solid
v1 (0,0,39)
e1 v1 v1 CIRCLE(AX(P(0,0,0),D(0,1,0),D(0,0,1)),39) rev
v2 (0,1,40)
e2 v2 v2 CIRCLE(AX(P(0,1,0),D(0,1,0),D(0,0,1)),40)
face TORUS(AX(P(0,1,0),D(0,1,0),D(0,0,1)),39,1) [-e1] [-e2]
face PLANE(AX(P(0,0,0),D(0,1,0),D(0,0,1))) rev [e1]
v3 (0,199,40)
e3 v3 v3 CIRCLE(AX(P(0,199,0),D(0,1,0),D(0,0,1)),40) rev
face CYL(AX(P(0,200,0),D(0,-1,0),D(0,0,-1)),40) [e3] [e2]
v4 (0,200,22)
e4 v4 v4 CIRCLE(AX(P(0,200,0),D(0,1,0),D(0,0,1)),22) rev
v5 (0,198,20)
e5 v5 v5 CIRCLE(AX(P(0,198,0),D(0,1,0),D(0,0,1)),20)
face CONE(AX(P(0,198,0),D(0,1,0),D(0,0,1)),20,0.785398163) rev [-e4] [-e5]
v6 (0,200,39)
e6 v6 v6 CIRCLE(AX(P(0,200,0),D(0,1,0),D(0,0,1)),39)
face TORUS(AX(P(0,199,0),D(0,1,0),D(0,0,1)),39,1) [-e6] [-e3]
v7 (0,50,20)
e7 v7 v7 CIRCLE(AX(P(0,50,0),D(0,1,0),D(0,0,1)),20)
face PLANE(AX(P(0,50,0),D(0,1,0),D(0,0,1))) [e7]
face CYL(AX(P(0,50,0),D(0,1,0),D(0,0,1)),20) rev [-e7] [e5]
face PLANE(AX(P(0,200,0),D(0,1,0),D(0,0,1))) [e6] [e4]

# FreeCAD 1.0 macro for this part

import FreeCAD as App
import Part
import Sketcher


def edges_at(feature, points):
    """Names of the edges that pass closest to the given points."""
    edges = feature.Shape.Edges
    near = lambda p: min(range(len(edges)), key=lambda i: edges[i].distToShape(Part.Vertex(*p))[0])
    return sorted({f"Edge{near(p) + 1}" for p in points})

doc = App.newDocument("Part")
body = doc.addObject("PartDesign::Body", "Body")

# Sketch on XZ plane
sketch1 = body.newObject("Sketcher::SketchObject", "Sketch")
sketch1.AttachmentSupport = (doc.getObject("XZ_Plane"), [""])
sketch1.MapMode = "FlatFace"
sketch1.addGeometry(Part.Circle(App.Vector(0, 0, 0), App.Vector(0, 0, 1), 40), False)
sketch1.addConstraint([
    Sketcher.Constraint("Coincident", 0, 3, -1, 1),
    Sketcher.Constraint("Diameter", 0, 80.0),
])
pad1 = body.newObject("PartDesign::Pad", "Pad")
pad1.Profile = sketch1
pad1.Length = 200
pad1.Reversed = True

# Sketch on XZ plane
sketch2 = body.newObject("Sketcher::SketchObject", "Sketch001")
sketch2.AttachmentSupport = (doc.getObject("XZ_Plane"), [""])
sketch2.MapMode = "FlatFace"
sketch2.AttachmentOffset = App.Placement(App.Vector(0, 0, -200), App.Rotation())
sketch2.addGeometry(Part.Circle(App.Vector(0, 0, 0), App.Vector(0, 0, 1), 20), False)
sketch2.addConstraint([
    Sketcher.Constraint("Coincident", 0, 3, -1, 1),
    Sketcher.Constraint("Diameter", 0, 40.0),
])
pocket1 = body.newObject("PartDesign::Pocket", "Pocket")
pocket1.Profile = sketch2
pocket1.Length = 150
pocket1.Reversed = True
doc.recompute()

chamfer = body.newObject("PartDesign::Chamfer", "Chamfer")
chamfer.Base = (pocket1, edges_at(pocket1, [(0, 200, -20)]))
chamfer.Size = 2
doc.recompute()

fillet = body.newObject("PartDesign::Fillet", "Fillet")
fillet.Base = (chamfer, edges_at(chamfer, [(0, 0, -40)]))
fillet.Radius = 1
doc.recompute()

fillet2 = body.newObject("PartDesign::Fillet", "Fillet001")
fillet2.Base = (fillet, edges_at(fillet, [(0, 200, -40)]))
fillet2.Radius = 1

doc.recompute()
